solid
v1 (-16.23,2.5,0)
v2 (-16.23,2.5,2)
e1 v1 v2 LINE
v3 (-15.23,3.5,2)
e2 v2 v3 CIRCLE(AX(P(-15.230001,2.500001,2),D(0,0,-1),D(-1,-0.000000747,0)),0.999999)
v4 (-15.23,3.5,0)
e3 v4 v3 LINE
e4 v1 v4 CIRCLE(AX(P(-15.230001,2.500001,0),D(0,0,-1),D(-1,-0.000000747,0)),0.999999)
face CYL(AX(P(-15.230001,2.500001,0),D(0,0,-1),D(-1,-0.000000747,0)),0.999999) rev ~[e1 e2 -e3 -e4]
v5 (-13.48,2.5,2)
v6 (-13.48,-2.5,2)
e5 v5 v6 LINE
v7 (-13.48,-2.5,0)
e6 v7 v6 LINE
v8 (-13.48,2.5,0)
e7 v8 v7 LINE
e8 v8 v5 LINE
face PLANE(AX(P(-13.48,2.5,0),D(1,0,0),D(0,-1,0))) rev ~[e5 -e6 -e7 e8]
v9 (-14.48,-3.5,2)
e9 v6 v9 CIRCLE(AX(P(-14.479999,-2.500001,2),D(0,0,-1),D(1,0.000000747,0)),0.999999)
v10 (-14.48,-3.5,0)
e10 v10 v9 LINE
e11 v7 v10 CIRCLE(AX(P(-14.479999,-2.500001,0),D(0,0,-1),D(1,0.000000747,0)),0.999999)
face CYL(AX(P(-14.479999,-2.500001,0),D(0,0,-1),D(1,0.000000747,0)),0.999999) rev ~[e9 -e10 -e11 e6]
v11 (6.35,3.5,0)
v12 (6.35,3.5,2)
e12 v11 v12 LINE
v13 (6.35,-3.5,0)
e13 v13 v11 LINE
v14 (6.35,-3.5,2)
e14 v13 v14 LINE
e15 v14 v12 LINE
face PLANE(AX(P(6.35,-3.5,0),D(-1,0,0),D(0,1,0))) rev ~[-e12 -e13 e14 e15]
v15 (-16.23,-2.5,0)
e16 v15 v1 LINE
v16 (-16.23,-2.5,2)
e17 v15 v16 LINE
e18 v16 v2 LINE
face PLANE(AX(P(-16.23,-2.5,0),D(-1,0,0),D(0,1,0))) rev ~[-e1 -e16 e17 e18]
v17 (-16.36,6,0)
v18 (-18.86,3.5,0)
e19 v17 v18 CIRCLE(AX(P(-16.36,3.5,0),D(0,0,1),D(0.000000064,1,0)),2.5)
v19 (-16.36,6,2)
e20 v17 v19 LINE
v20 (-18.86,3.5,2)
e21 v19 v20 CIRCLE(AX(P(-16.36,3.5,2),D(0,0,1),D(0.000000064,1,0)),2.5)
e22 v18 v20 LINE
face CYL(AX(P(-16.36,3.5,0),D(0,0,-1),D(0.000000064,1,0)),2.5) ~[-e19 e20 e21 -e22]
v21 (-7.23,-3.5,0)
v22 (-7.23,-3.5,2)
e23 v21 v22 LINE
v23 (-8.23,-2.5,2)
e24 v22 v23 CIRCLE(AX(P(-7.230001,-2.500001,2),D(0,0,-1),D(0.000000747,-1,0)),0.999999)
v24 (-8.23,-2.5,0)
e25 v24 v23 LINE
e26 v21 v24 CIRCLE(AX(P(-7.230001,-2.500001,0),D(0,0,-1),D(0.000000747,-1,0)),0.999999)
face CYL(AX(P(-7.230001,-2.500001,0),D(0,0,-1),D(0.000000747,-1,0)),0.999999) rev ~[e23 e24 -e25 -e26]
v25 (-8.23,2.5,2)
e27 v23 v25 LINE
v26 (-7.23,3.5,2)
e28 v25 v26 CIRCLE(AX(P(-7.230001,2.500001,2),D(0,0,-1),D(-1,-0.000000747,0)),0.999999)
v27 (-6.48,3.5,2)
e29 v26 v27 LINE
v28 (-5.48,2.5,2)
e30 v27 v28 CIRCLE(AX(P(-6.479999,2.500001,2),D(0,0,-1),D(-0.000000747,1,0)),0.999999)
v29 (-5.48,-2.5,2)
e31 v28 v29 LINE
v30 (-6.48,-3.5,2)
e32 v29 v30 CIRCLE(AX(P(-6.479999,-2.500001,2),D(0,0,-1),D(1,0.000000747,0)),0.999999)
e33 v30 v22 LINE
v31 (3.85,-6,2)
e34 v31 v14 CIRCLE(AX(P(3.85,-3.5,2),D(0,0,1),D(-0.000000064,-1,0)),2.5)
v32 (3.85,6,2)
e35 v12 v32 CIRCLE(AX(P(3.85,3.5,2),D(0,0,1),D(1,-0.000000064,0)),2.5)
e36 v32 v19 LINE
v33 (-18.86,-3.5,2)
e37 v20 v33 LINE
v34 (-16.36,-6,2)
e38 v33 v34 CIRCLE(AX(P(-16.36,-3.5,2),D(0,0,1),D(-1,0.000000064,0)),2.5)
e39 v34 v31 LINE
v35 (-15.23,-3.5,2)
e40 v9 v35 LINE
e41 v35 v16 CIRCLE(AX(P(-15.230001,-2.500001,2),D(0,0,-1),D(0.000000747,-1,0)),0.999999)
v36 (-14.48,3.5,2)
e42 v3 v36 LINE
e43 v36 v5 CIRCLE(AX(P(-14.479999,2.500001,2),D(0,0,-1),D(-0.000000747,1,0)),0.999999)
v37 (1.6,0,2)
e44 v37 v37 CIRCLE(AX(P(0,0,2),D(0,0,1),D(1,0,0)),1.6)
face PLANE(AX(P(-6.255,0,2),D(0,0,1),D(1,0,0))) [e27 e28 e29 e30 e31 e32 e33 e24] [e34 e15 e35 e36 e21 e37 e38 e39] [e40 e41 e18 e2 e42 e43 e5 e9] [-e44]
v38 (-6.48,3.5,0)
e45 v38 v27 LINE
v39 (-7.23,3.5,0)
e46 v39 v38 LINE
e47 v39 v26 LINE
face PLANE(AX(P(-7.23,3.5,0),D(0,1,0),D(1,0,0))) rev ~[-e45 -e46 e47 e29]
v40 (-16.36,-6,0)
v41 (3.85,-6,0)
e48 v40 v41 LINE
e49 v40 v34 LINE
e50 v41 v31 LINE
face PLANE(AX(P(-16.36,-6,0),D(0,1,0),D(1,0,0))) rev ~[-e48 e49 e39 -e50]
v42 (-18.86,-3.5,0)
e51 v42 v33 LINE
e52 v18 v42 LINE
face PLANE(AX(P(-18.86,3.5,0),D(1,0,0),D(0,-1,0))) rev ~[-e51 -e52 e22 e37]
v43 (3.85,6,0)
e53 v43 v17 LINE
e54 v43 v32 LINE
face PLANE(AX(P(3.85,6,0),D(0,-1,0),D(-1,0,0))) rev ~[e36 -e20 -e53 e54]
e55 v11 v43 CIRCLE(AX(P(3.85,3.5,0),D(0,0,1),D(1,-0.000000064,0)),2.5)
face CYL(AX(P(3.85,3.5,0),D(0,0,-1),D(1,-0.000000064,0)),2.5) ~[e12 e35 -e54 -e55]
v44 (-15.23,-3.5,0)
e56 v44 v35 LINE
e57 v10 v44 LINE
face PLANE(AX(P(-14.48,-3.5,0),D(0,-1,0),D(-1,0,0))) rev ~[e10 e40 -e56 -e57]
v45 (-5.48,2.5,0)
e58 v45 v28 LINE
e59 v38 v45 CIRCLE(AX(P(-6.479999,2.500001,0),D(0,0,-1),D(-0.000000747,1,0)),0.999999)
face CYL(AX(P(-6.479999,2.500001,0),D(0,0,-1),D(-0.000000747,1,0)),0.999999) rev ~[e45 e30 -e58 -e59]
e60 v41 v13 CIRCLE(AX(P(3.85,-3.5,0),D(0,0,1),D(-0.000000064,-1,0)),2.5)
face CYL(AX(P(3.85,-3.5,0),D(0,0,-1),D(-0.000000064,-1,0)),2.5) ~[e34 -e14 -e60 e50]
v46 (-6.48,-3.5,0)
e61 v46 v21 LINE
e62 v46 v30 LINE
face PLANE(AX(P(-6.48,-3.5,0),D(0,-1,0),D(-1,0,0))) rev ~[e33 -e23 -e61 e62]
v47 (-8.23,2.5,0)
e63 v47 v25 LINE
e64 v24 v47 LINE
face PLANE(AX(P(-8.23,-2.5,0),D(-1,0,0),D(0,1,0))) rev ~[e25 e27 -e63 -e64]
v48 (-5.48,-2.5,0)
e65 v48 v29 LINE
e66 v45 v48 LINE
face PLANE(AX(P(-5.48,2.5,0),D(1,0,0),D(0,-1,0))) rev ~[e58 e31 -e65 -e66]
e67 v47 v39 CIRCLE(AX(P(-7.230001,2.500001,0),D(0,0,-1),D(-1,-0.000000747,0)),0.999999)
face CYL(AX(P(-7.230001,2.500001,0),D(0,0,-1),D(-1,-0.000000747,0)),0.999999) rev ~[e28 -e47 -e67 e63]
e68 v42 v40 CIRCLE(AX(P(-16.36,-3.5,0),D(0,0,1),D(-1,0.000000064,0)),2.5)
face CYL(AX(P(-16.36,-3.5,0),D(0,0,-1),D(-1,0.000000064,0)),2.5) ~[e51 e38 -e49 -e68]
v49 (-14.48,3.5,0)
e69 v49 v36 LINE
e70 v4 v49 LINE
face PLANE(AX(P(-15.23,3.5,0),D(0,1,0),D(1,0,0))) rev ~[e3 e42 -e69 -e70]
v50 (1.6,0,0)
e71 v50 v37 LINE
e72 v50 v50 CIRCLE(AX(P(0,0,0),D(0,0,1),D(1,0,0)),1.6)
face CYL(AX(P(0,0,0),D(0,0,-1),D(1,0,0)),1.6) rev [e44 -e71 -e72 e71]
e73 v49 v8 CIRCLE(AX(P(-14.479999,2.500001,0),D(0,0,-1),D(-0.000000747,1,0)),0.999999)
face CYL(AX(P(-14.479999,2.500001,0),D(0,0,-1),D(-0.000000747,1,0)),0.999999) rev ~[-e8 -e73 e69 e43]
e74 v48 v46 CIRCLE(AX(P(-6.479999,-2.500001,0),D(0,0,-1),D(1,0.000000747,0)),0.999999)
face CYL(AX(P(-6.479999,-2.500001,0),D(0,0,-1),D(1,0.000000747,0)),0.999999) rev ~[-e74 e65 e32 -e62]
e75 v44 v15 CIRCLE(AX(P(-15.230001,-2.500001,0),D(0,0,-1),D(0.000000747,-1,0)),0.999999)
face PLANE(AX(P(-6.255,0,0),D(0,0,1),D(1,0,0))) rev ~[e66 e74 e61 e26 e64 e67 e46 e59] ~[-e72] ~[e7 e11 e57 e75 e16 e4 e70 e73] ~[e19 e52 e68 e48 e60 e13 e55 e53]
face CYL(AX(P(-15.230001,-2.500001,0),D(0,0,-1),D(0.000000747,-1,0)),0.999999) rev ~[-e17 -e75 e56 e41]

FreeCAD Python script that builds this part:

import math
import FreeCAD as App
import Part
import Sketcher

V = App.Vector

doc = App.newDocument("Part")
body = doc.addObject("PartDesign::Body", "Body")

# Sketch on XY plane
sketch1 = body.newObject("Sketcher::SketchObject", "Sketch")
sketch1.AttachmentSupport = (doc.getObject("XY_Plane"), [""])
sketch1.MapMode = "FlatFace"
sketch1.addGeometry(Part.LineSegment(V(3.85, 6, 0), V(-16.36, 6, 0)), False)
sketch1.addGeometry(Part.ArcOfCircle(Part.Circle(V(-16.36, 3.5, 0), V(0, 0, 1), 2.5), math.radians(89.999996), math.radians(180.000004)), False)
sketch1.addGeometry(Part.LineSegment(V(-18.86, 3.5, 0), V(-18.86, -3.5, 0)), False)
sketch1.addGeometry(Part.ArcOfCircle(Part.Circle(V(-16.36, -3.5, 0), V(0, 0, 1), 2.5), math.radians(179.999996), math.radians(270.000004)), False)
sketch1.addGeometry(Part.LineSegment(V(-16.36, -6, 0), V(3.85, -6, 0)), False)
sketch1.addGeometry(Part.ArcOfCircle(Part.Circle(V(3.85, -3.5, 0), V(0, 0, 1), 2.5), math.radians(-90.000004), math.radians(0.000004)), False)
sketch1.addGeometry(Part.LineSegment(V(6.35, -3.5, 0), V(6.35, 3.5, 0)), False)
sketch1.addGeometry(Part.ArcOfCircle(Part.Circle(V(3.85, 3.5, 0), V(0, 0, 1), 2.5), math.radians(-0.000004), math.radians(90.000004)), False)
sketch1.addGeometry(Part.LineSegment(V(-16.23, -2.5, 0), V(-16.23, 2.5, 0)), False)
sketch1.addGeometry(Part.ArcOfCircle(Part.Circle(V(-15.230001, 2.500001, 0), V(0, 0, 1), 0.999999), math.radians(89.999957), math.radians(180.000043)), False)
sketch1.addGeometry(Part.LineSegment(V(-15.23, 3.5, 0), V(-14.48, 3.5, 0)), False)
sketch1.addGeometry(Part.ArcOfCircle(Part.Circle(V(-14.479999, 2.500001, 0), V(0, 0, 1), 0.999999), math.radians(-0.000043), math.radians(90.000043)), False)
sketch1.addGeometry(Part.LineSegment(V(-13.48, 2.5, 0), V(-13.48, -2.5, 0)), False)
sketch1.addGeometry(Part.ArcOfCircle(Part.Circle(V(-14.479999, -2.500001, 0), V(0, 0, 1), 0.999999), math.radians(-90.000043), math.radians(0.000043)), False)
sketch1.addGeometry(Part.LineSegment(V(-14.48, -3.5, 0), V(-15.23, -3.5, 0)), False)
sketch1.addGeometry(Part.ArcOfCircle(Part.Circle(V(-15.230001, -2.500001, 0), V(0, 0, 1), 0.999999), math.radians(179.999957), math.radians(270.000043)), False)
sketch1.addGeometry(Part.LineSegment(V(-8.23, -2.5, 0), V(-8.23, 2.5, 0)), False)
sketch1.addGeometry(Part.ArcOfCircle(Part.Circle(V(-7.230001, 2.500001, 0), V(0, 0, 1), 0.999999), math.radians(89.999957), math.radians(180.000043)), False)
sketch1.addGeometry(Part.LineSegment(V(-7.23, 3.5, 0), V(-6.48, 3.5, 0)), False)
sketch1.addGeometry(Part.ArcOfCircle(Part.Circle(V(-6.479999, 2.500001, 0), V(0, 0, 1), 0.999999), math.radians(-0.000043), math.radians(90.000043)), False)
sketch1.addGeometry(Part.LineSegment(V(-5.48, 2.5, 0), V(-5.48, -2.5, 0)), False)
sketch1.addGeometry(Part.ArcOfCircle(Part.Circle(V(-6.479999, -2.500001, 0), V(0, 0, 1), 0.999999), math.radians(-90.000043), math.radians(0.000043)), False)
sketch1.addGeometry(Part.LineSegment(V(-6.48, -3.5, 0), V(-7.23, -3.5, 0)), False)
sketch1.addGeometry(Part.ArcOfCircle(Part.Circle(V(-7.230001, -2.500001, 0), V(0, 0, 1), 0.999999), math.radians(179.999957), math.radians(270.000043)), False)
sketch1.addGeometry(Part.Circle(V(0, 0, 0), V(0, 0, 1), 1.6), False)
sketch1.addConstraint(Sketcher.Constraint("Tangent", 0, 2, 1, 1))
sketch1.addConstraint(Sketcher.Constraint("Tangent", 1, 2, 2, 1))
sketch1.addConstraint(Sketcher.Constraint("Tangent", 2, 2, 3, 1))
sketch1.addConstraint(Sketcher.Constraint("Tangent", 3, 2, 4, 1))
sketch1.addConstraint(Sketcher.Constraint("Tangent", 4, 2, 5, 1))
sketch1.addConstraint(Sketcher.Constraint("Tangent", 5, 2, 6, 1))
sketch1.addConstraint(Sketcher.Constraint("Tangent", 6, 2, 7, 1))
sketch1.addConstraint(Sketcher.Constraint("Tangent", 7, 2, 0, 1))
sketch1.addConstraint(Sketcher.Constraint("Tangent", 8, 2, 9, 2))
sketch1.addConstraint(Sketcher.Constraint("Tangent", 9, 1, 10, 1))
sketch1.addConstraint(Sketcher.Constraint("Tangent", 10, 2, 11, 2))
sketch1.addConstraint(Sketcher.Constraint("Tangent", 11, 1, 12, 1))
sketch1.addConstraint(Sketcher.Constraint("Tangent", 12, 2, 13, 2))
sketch1.addConstraint(Sketcher.Constraint("Tangent", 13, 1, 14, 1))
sketch1.addConstraint(Sketcher.Constraint("Tangent", 14, 2, 15, 2))
sketch1.addConstraint(Sketcher.Constraint("Tangent", 15, 1, 8, 1))
sketch1.addConstraint(Sketcher.Constraint("Tangent", 16, 2, 17, 2))
sketch1.addConstraint(Sketcher.Constraint("Tangent", 17, 1, 18, 1))
sketch1.addConstraint(Sketcher.Constraint("Tangent", 18, 2, 19, 2))
sketch1.addConstraint(Sketcher.Constraint("Tangent", 19, 1, 20, 1))
sketch1.addConstraint(Sketcher.Constraint("Tangent", 20, 2, 21, 2))
sketch1.addConstraint(Sketcher.Constraint("Tangent", 21, 1, 22, 1))
sketch1.addConstraint(Sketcher.Constraint("Tangent", 22, 2, 23, 2))
sketch1.addConstraint(Sketcher.Constraint("Tangent", 23, 1, 16, 1))
sketch1.addConstraint(Sketcher.Constraint("Horizontal", 0))
sketch1.addConstraint(Sketcher.Constraint("Vertical", 2))
sketch1.addConstraint(Sketcher.Constraint("Horizontal", 4))
sketch1.addConstraint(Sketcher.Constraint("Vertical", 6))
sketch1.addConstraint(Sketcher.Constraint("Vertical", 8))
sketch1.addConstraint(Sketcher.Constraint("Horizontal", 10))
sketch1.addConstraint(Sketcher.Constraint("Vertical", 12))
sketch1.addConstraint(Sketcher.Constraint("Horizontal", 14))
sketch1.addConstraint(Sketcher.Constraint("Vertical", 16))
sketch1.addConstraint(Sketcher.Constraint("Horizontal", 18))
sketch1.addConstraint(Sketcher.Constraint("Vertical", 20))
sketch1.addConstraint(Sketcher.Constraint("Horizontal", 22))
sketch1.addConstraint(Sketcher.Constraint("Coincident", 24, 3, -1, 1))
sketch1.addConstraint(Sketcher.Constraint("Equal", 1, 3))
sketch1.addConstraint(Sketcher.Constraint("Equal", 3, 5))
sketch1.addConstraint(Sketcher.Constraint("Equal", 5, 7))
sketch1.addConstraint(Sketcher.Constraint("Equal", 9, 11))
sketch1.addConstraint(Sketcher.Constraint("Equal", 11, 13))
sketch1.addConstraint(Sketcher.Constraint("Equal", 13, 15))
sketch1.addConstraint(Sketcher.Constraint("Equal", 15, 17))
sketch1.addConstraint(Sketcher.Constraint("Equal", 17, 19))
sketch1.addConstraint(Sketcher.Constraint("Equal", 19, 21))
sketch1.addConstraint(Sketcher.Constraint("Equal", 21, 23))
sketch1.addConstraint(Sketcher.Constraint("Horizontal", 11, 3, 17, 3))
sketch1.addConstraint(Sketcher.Constraint("Horizontal", 15, 3, 21, 3))
sketch1.addConstraint(Sketcher.Constraint("Horizontal", 6, 2, 9, 1))
sketch1.addConstraint(Sketcher.Constraint("Horizontal", 5, 2, 13, 1))
sketch1.addConstraint(Sketcher.Constraint("Equal", 14, 18))
sketch1.addConstraint(Sketcher.Constraint("Radius", 9, 0.999999))
sketch1.addConstraint(Sketcher.Constraint("Diameter", 24, 3.2))
sketch1.addConstraint(Sketcher.Constraint("Radius", 1, 2.5))
sketch1.addConstraint(Sketcher.Constraint("DistanceY", 2, 2, 2, 1, 7.0))
sketch1.addConstraint(Sketcher.Constraint("DistanceY", -1, 1, 0, 2, 6.0))
sketch1.addConstraint(Sketcher.Constraint("DistanceX", 9, 3, 17, 3, 8.0))
sketch1.addConstraint(Sketcher.Constraint("DistanceX", 0, 2, 0, 1, 20.21))
sketch1.addConstraint(Sketcher.Constraint("DistanceX", 10, 1, 10, 2, 0.75))
sketch1.addConstraint(Sketcher.Constraint("DistanceX", 1, 3, -1, 1, 16.36))
sketch1.addConstraint(Sketcher.Constraint("DistanceX", 9, 3, -1, 1, 15.230001))
pad1 = body.newObject("PartDesign::Pad", "Pad")
pad1.Profile = sketch1
pad1.Length = 2

doc.recompute()
